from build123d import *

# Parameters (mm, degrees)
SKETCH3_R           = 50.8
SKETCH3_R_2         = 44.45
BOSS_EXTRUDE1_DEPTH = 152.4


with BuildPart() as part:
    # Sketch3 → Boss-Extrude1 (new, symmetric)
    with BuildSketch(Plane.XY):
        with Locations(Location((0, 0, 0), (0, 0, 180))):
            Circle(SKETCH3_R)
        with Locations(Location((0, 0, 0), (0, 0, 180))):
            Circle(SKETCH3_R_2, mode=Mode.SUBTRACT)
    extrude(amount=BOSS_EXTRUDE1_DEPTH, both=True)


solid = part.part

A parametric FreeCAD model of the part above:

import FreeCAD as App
import Part
import Sketcher
Q = App.Units.Quantity

doc = App.newDocument("Part")
params = doc.addObject("Spreadsheet::Sheet", "Params")
for row, (alias, value) in enumerate([
    ("sketch1_diameter", "4 in"),
    ("sketch1_diameter2", "3.5 in"),
    ("pad1_length", "12 in"),
], start=1):
    params.set(f"A{row}", alias)
    params.set(f"B{row}", "=" + value)
    params.setAlias(f"B{row}", alias)

body = doc.addObject("PartDesign::Body", "Body")

sketch1 = body.newObject("Sketcher::SketchObject", "Sketch")
sketch1.AttachmentSupport = (doc.getObject("XY_Plane"), [""])
sketch1.MapMode = "FlatFace"
sketch1.addGeometry([
    Part.Circle(App.Vector(0, 0, 0), App.Vector(0, 0, 1), 51),
    Part.Circle(App.Vector(0, 0, 0), App.Vector(0, 0, 1), 44),
], False)
sketch1.addConstraint([
    Sketcher.Constraint("Coincident", 0, 3, -1, 1),
    Sketcher.Constraint("Coincident", 1, 3, -1, 1),
    Sketcher.Constraint("Diameter", 0, Q("4 in")),
    Sketcher.Constraint("Diameter", 1, Q("3.5 in")),
])
sketch1.setExpression("Constraints[2]", "Params.sketch1_diameter")
sketch1.setExpression("Constraints[3]", "Params.sketch1_diameter2")
pad1 = body.newObject("PartDesign::Pad", "Pad")
pad1.Profile = sketch1
pad1.setExpression("Length", "Params.pad1_length")
pad1.Midplane = True

doc.recompute()
